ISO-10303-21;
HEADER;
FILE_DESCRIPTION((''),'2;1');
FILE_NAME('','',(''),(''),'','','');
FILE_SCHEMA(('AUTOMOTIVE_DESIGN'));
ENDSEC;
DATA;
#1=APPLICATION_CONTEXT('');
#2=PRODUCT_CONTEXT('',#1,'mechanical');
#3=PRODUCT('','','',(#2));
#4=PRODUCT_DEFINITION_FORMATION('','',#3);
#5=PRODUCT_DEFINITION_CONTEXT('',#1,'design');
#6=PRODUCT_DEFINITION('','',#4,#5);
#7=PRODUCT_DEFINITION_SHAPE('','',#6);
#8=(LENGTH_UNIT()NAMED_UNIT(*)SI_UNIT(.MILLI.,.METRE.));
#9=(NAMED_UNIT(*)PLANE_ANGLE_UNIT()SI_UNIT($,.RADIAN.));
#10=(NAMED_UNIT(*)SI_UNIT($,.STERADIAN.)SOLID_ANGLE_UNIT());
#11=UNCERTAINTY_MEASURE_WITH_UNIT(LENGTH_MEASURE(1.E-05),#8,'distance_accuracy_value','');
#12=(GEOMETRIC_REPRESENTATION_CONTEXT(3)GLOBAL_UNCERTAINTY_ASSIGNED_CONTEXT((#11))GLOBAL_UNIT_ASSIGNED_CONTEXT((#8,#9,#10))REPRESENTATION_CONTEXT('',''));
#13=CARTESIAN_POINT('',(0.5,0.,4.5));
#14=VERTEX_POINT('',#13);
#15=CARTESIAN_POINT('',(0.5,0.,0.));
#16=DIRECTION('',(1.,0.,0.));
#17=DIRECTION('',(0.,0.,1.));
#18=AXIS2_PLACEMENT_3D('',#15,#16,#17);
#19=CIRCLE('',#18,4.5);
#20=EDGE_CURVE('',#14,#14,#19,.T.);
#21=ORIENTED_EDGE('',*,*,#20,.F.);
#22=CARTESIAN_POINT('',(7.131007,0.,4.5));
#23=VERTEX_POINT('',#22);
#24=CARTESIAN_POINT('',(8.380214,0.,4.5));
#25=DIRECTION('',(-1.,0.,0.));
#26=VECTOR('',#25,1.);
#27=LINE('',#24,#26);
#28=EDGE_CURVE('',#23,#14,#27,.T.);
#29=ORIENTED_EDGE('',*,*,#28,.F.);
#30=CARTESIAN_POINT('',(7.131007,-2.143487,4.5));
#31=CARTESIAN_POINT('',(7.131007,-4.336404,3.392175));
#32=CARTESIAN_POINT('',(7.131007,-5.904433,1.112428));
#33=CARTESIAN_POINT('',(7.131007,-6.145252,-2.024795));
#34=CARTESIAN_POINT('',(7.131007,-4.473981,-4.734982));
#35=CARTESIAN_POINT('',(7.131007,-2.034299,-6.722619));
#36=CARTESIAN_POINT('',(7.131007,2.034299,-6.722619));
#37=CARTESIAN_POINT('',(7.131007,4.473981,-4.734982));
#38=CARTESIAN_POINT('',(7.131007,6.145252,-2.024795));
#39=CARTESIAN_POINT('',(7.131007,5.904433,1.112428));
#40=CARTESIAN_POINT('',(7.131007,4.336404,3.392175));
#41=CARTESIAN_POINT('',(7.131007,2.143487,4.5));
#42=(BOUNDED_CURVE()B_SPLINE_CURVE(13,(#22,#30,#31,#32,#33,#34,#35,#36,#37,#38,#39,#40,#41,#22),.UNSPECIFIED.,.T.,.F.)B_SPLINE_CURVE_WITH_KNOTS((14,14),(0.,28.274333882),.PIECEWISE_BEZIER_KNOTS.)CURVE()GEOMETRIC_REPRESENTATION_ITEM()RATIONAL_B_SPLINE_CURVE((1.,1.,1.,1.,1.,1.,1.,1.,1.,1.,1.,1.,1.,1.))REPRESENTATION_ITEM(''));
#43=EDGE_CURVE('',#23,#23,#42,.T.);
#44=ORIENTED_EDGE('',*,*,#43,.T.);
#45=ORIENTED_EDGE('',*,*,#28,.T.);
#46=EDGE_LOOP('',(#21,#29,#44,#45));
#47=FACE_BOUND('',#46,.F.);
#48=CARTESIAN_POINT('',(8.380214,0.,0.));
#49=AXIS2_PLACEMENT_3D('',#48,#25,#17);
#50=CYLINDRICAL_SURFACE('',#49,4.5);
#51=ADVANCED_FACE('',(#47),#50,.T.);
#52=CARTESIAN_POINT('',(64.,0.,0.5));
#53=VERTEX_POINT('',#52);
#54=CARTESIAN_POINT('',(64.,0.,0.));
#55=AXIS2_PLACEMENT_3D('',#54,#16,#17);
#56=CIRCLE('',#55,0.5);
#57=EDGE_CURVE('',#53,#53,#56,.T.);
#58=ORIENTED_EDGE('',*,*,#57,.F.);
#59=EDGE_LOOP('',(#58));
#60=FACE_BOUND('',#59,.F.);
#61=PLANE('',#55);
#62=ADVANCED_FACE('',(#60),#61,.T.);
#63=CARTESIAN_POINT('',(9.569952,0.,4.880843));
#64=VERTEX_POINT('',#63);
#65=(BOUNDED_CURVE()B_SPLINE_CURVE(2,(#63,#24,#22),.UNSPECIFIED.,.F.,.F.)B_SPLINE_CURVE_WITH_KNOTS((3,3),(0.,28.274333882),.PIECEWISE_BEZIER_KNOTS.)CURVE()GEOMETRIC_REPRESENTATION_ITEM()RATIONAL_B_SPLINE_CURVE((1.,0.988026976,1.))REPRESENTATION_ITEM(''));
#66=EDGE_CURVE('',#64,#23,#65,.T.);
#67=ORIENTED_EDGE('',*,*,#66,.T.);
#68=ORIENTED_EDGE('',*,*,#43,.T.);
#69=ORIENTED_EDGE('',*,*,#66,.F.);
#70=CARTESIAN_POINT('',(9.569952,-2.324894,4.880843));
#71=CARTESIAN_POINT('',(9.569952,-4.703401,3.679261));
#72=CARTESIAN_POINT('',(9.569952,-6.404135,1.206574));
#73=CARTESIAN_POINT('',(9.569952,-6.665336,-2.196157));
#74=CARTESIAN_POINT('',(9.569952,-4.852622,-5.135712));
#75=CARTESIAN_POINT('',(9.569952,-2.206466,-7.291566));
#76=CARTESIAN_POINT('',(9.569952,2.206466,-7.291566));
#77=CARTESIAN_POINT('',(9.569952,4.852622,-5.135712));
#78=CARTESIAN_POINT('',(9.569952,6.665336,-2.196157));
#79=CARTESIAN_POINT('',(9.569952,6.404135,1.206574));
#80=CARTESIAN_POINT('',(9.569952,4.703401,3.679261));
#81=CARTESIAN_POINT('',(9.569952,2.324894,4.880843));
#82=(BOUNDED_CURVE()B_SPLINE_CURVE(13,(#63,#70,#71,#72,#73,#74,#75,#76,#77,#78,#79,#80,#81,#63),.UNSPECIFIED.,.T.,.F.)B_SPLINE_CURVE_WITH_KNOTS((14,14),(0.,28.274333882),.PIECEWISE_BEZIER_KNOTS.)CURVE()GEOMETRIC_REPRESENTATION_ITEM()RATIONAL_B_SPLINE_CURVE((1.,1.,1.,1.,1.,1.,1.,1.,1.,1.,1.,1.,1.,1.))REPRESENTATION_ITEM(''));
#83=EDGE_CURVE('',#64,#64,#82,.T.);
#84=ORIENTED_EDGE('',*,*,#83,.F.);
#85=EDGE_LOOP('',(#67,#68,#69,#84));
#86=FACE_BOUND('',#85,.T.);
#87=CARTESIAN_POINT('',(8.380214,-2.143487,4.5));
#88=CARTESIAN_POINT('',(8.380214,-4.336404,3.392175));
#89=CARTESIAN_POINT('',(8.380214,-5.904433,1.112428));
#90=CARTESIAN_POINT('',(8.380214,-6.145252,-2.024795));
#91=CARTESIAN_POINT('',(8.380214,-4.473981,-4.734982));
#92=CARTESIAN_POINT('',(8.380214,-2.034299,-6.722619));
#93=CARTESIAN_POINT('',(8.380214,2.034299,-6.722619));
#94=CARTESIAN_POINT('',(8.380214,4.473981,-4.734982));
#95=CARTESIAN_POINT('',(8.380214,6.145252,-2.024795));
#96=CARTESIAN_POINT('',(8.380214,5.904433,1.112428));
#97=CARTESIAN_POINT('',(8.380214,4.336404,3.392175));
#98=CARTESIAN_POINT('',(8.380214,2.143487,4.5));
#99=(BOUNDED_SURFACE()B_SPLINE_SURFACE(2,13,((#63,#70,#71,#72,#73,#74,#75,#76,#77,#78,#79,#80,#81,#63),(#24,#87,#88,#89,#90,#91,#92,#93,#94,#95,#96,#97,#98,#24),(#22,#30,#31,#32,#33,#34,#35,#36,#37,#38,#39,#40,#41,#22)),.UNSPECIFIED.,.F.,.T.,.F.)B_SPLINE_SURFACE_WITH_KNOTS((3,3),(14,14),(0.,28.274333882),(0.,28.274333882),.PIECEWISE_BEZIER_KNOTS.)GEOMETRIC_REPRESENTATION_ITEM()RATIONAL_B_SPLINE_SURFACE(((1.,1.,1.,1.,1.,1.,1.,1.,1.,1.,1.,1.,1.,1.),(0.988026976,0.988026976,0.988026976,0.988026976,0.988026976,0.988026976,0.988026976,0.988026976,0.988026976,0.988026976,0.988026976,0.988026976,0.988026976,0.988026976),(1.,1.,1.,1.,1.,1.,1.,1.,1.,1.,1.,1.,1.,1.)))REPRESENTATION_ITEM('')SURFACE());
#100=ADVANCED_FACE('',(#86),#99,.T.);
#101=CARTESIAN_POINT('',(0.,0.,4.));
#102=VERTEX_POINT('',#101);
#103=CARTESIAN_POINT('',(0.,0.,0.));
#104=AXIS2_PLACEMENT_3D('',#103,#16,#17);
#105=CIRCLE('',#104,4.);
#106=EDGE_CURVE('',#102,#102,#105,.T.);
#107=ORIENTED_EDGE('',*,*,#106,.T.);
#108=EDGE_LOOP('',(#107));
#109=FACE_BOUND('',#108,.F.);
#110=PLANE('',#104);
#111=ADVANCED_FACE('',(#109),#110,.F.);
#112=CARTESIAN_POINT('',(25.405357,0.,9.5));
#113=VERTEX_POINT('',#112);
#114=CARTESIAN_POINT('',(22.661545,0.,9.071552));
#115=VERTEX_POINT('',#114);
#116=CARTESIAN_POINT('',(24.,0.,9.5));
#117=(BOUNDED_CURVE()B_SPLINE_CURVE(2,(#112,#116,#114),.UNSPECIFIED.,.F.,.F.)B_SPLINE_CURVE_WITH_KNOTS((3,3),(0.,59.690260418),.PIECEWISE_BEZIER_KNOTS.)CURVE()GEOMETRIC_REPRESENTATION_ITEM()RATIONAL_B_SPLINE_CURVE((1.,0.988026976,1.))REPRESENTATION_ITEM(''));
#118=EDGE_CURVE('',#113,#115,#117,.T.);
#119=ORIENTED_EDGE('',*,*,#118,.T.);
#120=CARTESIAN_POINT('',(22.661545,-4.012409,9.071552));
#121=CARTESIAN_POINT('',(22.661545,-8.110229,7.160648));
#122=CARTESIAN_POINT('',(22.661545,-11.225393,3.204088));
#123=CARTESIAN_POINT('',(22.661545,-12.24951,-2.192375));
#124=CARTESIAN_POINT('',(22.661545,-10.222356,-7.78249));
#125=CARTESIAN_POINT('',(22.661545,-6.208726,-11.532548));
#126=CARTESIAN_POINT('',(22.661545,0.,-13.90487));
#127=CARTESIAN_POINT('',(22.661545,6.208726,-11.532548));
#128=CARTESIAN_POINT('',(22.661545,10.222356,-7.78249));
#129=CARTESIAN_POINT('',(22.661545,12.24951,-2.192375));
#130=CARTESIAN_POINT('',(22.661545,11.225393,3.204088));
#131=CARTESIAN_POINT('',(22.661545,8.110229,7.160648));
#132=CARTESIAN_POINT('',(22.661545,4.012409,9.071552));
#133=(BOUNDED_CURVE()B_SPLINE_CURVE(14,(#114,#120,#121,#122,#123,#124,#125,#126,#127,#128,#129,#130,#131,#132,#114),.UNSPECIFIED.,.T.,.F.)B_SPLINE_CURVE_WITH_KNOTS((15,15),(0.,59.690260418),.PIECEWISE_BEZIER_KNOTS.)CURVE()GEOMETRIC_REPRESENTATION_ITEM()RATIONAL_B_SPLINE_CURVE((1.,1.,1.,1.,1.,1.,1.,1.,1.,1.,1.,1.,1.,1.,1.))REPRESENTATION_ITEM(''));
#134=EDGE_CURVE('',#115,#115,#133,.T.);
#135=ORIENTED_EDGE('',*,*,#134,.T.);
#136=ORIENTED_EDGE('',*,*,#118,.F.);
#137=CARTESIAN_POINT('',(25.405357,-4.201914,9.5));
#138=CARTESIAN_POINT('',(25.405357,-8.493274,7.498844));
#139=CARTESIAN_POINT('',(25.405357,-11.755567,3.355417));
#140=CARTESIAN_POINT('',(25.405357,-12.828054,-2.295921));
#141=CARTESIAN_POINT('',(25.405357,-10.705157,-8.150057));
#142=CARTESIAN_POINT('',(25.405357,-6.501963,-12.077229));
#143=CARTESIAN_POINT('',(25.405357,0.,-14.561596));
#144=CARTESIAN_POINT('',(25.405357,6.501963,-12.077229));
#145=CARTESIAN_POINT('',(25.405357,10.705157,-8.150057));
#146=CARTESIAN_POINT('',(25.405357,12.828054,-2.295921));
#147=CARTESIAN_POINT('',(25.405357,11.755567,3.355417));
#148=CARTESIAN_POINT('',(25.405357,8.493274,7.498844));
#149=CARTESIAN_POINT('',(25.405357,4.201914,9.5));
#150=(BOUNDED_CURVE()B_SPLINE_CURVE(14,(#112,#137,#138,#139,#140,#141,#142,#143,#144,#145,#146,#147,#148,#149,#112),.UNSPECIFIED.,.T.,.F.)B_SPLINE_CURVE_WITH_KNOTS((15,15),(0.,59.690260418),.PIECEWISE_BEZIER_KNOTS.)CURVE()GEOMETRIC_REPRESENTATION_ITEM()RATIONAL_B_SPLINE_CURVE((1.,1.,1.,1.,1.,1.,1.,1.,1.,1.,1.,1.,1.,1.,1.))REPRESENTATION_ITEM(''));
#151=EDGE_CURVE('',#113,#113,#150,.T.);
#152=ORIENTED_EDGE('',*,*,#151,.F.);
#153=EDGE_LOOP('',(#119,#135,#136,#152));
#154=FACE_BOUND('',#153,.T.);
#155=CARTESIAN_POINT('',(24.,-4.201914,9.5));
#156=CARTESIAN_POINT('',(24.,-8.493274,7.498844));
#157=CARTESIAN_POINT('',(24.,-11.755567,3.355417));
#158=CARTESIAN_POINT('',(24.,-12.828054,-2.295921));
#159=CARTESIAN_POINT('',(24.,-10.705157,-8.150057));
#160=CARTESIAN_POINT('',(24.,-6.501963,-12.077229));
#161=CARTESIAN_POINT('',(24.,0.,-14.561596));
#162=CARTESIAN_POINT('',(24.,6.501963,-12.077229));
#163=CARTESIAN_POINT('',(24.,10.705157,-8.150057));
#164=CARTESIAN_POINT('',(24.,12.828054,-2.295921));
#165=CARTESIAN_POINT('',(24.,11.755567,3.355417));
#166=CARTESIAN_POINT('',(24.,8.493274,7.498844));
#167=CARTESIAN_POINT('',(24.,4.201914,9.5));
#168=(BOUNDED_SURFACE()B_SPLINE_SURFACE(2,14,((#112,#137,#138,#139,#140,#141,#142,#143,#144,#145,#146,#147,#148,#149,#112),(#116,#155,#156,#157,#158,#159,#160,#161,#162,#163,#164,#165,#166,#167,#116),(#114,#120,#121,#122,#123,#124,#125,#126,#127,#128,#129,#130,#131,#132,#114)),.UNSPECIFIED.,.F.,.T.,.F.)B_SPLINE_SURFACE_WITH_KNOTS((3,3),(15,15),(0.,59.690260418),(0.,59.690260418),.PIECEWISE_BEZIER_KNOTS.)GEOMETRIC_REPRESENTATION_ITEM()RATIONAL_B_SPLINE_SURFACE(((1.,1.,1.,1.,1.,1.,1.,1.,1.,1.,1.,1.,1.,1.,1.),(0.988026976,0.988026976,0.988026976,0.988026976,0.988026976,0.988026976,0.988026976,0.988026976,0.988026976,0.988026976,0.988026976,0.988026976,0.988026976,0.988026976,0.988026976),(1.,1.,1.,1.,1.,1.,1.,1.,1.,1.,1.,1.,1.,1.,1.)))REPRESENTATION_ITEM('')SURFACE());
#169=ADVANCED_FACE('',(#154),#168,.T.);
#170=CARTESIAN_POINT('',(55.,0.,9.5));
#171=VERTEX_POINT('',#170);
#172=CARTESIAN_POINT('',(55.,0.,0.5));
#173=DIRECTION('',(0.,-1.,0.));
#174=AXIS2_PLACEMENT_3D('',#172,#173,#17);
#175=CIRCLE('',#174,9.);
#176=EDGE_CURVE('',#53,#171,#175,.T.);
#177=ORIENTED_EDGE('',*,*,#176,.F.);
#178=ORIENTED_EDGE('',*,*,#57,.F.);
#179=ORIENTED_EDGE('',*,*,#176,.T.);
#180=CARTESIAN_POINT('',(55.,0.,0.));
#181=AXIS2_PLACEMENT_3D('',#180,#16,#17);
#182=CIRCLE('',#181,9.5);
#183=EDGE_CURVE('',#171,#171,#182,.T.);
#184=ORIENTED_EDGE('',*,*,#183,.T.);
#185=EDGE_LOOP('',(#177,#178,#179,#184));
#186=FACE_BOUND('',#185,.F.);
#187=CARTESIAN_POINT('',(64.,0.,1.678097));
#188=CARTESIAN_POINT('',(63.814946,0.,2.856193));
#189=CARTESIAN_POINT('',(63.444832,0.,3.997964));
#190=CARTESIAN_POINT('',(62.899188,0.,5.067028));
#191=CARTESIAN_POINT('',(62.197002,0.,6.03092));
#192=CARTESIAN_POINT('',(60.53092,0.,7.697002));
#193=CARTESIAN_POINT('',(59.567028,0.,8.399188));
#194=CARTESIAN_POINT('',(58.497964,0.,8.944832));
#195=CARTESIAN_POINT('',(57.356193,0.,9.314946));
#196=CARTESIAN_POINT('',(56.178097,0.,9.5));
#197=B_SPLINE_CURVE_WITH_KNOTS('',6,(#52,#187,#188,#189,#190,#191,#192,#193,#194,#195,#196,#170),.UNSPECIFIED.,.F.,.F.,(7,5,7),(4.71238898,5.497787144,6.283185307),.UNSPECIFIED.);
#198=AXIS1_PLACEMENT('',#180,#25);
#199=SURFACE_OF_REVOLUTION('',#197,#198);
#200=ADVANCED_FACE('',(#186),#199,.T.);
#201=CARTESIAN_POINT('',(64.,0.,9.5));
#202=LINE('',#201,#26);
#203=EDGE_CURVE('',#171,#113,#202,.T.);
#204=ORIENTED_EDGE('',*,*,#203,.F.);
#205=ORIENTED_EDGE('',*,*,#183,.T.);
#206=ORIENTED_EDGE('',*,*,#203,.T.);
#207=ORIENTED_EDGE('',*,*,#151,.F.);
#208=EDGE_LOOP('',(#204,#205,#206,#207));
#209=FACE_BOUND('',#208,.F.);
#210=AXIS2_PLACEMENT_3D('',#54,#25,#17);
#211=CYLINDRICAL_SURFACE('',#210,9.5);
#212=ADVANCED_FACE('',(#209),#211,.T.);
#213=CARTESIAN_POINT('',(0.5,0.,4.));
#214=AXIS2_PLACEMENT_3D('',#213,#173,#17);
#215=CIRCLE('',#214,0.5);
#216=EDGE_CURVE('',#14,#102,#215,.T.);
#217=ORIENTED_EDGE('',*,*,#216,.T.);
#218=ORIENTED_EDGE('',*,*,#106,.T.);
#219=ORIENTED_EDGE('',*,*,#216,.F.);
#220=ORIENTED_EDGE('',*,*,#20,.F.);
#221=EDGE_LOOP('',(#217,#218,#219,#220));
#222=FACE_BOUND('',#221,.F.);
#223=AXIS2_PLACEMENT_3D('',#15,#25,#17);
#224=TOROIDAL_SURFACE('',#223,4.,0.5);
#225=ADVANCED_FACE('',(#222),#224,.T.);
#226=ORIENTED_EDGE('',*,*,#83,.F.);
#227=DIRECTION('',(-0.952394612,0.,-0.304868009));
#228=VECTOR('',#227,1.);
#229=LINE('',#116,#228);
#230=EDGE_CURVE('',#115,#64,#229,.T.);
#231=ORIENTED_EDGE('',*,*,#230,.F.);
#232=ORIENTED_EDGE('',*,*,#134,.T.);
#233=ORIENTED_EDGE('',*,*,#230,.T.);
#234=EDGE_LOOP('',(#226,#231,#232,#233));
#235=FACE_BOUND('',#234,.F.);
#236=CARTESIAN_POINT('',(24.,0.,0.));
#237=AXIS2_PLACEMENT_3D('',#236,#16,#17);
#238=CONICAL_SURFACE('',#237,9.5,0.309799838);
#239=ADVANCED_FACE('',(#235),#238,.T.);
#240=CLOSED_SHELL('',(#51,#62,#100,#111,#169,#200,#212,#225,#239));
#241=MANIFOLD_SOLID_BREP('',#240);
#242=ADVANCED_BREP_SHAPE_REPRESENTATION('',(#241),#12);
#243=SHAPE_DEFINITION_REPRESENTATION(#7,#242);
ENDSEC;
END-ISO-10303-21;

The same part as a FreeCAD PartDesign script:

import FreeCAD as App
import Part
import Sketcher

V = App.Vector
Q = App.Units.Quantity


def edges_at(feature, points):
    """Names of the edges that pass closest to the given points."""
    edges = feature.Shape.Edges
    near = lambda p: min(range(len(edges)), key=lambda i: edges[i].distToShape(Part.Vertex(*p))[0])
    return sorted({f"Edge{near(p) + 1}" for p in points})


def add_polygon(sketch, points):
    """Adds a closed chain of lines whose ends are joined by coincident constraints."""
    first, n = sketch.GeometryCount, len(points)
    for a, b in zip(points, points[1:] + points[:1]):
        sketch.addGeometry(Part.LineSegment(App.Vector(*a, 0), App.Vector(*b, 0)), False)
    for i in range(n):
        sketch.addConstraint(Sketcher.Constraint("Coincident", first + i, 2, first + (i + 1) % n, 1))

doc = App.newDocument("Part")
params = doc.addObject("Spreadsheet::Sheet", "Params")
for row, (alias, value) in enumerate([
    ("sketch1_width", "64 mm"),
    ("sketch1_width2", "40 mm"),
    ("sketch1_height", "4.5 mm"),
    ("sketch1_height2", "9.5 mm"),
    ("revolution_angle", "360 deg"),
    ("fillet_radius", "9 mm"),
    ("fillet2_radius", "9 mm"),
    ("fillet3_radius", "8 mm"),
    ("fillet4_radius", "0.5 mm"),
], start=1):
    params.set(f"A{row}", alias)
    params.set(f"B{row}", "=" + value)
    params.setAlias(f"B{row}", alias)

body = doc.addObject("PartDesign::Body", "Body")

# Sketch on XZ plane
sketch1 = body.newObject("Sketcher::SketchObject", "Sketch")
sketch1.AttachmentSupport = (doc.getObject("XZ_Plane"), [""])
sketch1.MapMode = "FlatFace"
add_polygon(sketch1, [(0, 4.5), (0, 0), (64, 0), (64, 9.5), (24, 9.5), (8.4, 4.5)])  # lines 0-5
sketch1.addConstraint([
    Sketcher.Constraint("Vertical", 0),
    Sketcher.Constraint("Horizontal", 1),
    Sketcher.Constraint("Vertical", 2),
    Sketcher.Constraint("Horizontal", 3),
    Sketcher.Constraint("Horizontal", 5),
    Sketcher.Constraint("Coincident", 0, 2, -1, 1),
    Sketcher.Constraint("DistanceX", 1, 1, 1, 2, Q("64 mm")),
    Sketcher.Constraint("DistanceX", 3, 2, 3, 1, Q("40 mm")),
    Sketcher.Constraint("DistanceY", 0, 2, 0, 1, Q("4.5 mm")),
    Sketcher.Constraint("DistanceY", 2, 1, 2, 2, Q("9.5 mm")),
    Sketcher.Constraint("Distance", 4, Q("16.40054 mm")),
])
sketch1.setExpression("Constraints[12]", "Params.sketch1_width")
sketch1.setExpression("Constraints[13]", "Params.sketch1_width2")
sketch1.setExpression("Constraints[14]", "Params.sketch1_height")
sketch1.setExpression("Constraints[15]", "Params.sketch1_height2")
revolution = body.newObject("PartDesign::Revolution", "Revolution")
revolution.Profile = sketch1
revolution.ReferenceAxis = (sketch1, ["H_Axis"])
revolution.setExpression("Angle", "Params.revolution_angle")
doc.recompute()

fillet = body.newObject("PartDesign::Fillet", "Fillet")
fillet.Base = (revolution, edges_at(revolution, [(64, 0, -9.5)]))
fillet.setExpression("Radius", "Params.fillet_radius")
doc.recompute()

fillet2 = body.newObject("PartDesign::Fillet", "Fillet001")
fillet2.Base = (fillet, edges_at(fillet, [(24, 0, -9.5)]))
fillet2.setExpression("Radius", "Params.fillet2_radius")
doc.recompute()

fillet3 = body.newObject("PartDesign::Fillet", "Fillet002")
fillet3.Base = (fillet2, edges_at(fillet2, [(8.38, 0, -4.5)]))
fillet3.setExpression("Radius", "Params.fillet3_radius")
doc.recompute()

fillet4 = body.newObject("PartDesign::Fillet", "Fillet003")
fillet4.Base = (fillet3, edges_at(fillet3, [(0, 0, -4.5)]))
fillet4.setExpression("Radius", "Params.fillet4_radius")

doc.recompute()
